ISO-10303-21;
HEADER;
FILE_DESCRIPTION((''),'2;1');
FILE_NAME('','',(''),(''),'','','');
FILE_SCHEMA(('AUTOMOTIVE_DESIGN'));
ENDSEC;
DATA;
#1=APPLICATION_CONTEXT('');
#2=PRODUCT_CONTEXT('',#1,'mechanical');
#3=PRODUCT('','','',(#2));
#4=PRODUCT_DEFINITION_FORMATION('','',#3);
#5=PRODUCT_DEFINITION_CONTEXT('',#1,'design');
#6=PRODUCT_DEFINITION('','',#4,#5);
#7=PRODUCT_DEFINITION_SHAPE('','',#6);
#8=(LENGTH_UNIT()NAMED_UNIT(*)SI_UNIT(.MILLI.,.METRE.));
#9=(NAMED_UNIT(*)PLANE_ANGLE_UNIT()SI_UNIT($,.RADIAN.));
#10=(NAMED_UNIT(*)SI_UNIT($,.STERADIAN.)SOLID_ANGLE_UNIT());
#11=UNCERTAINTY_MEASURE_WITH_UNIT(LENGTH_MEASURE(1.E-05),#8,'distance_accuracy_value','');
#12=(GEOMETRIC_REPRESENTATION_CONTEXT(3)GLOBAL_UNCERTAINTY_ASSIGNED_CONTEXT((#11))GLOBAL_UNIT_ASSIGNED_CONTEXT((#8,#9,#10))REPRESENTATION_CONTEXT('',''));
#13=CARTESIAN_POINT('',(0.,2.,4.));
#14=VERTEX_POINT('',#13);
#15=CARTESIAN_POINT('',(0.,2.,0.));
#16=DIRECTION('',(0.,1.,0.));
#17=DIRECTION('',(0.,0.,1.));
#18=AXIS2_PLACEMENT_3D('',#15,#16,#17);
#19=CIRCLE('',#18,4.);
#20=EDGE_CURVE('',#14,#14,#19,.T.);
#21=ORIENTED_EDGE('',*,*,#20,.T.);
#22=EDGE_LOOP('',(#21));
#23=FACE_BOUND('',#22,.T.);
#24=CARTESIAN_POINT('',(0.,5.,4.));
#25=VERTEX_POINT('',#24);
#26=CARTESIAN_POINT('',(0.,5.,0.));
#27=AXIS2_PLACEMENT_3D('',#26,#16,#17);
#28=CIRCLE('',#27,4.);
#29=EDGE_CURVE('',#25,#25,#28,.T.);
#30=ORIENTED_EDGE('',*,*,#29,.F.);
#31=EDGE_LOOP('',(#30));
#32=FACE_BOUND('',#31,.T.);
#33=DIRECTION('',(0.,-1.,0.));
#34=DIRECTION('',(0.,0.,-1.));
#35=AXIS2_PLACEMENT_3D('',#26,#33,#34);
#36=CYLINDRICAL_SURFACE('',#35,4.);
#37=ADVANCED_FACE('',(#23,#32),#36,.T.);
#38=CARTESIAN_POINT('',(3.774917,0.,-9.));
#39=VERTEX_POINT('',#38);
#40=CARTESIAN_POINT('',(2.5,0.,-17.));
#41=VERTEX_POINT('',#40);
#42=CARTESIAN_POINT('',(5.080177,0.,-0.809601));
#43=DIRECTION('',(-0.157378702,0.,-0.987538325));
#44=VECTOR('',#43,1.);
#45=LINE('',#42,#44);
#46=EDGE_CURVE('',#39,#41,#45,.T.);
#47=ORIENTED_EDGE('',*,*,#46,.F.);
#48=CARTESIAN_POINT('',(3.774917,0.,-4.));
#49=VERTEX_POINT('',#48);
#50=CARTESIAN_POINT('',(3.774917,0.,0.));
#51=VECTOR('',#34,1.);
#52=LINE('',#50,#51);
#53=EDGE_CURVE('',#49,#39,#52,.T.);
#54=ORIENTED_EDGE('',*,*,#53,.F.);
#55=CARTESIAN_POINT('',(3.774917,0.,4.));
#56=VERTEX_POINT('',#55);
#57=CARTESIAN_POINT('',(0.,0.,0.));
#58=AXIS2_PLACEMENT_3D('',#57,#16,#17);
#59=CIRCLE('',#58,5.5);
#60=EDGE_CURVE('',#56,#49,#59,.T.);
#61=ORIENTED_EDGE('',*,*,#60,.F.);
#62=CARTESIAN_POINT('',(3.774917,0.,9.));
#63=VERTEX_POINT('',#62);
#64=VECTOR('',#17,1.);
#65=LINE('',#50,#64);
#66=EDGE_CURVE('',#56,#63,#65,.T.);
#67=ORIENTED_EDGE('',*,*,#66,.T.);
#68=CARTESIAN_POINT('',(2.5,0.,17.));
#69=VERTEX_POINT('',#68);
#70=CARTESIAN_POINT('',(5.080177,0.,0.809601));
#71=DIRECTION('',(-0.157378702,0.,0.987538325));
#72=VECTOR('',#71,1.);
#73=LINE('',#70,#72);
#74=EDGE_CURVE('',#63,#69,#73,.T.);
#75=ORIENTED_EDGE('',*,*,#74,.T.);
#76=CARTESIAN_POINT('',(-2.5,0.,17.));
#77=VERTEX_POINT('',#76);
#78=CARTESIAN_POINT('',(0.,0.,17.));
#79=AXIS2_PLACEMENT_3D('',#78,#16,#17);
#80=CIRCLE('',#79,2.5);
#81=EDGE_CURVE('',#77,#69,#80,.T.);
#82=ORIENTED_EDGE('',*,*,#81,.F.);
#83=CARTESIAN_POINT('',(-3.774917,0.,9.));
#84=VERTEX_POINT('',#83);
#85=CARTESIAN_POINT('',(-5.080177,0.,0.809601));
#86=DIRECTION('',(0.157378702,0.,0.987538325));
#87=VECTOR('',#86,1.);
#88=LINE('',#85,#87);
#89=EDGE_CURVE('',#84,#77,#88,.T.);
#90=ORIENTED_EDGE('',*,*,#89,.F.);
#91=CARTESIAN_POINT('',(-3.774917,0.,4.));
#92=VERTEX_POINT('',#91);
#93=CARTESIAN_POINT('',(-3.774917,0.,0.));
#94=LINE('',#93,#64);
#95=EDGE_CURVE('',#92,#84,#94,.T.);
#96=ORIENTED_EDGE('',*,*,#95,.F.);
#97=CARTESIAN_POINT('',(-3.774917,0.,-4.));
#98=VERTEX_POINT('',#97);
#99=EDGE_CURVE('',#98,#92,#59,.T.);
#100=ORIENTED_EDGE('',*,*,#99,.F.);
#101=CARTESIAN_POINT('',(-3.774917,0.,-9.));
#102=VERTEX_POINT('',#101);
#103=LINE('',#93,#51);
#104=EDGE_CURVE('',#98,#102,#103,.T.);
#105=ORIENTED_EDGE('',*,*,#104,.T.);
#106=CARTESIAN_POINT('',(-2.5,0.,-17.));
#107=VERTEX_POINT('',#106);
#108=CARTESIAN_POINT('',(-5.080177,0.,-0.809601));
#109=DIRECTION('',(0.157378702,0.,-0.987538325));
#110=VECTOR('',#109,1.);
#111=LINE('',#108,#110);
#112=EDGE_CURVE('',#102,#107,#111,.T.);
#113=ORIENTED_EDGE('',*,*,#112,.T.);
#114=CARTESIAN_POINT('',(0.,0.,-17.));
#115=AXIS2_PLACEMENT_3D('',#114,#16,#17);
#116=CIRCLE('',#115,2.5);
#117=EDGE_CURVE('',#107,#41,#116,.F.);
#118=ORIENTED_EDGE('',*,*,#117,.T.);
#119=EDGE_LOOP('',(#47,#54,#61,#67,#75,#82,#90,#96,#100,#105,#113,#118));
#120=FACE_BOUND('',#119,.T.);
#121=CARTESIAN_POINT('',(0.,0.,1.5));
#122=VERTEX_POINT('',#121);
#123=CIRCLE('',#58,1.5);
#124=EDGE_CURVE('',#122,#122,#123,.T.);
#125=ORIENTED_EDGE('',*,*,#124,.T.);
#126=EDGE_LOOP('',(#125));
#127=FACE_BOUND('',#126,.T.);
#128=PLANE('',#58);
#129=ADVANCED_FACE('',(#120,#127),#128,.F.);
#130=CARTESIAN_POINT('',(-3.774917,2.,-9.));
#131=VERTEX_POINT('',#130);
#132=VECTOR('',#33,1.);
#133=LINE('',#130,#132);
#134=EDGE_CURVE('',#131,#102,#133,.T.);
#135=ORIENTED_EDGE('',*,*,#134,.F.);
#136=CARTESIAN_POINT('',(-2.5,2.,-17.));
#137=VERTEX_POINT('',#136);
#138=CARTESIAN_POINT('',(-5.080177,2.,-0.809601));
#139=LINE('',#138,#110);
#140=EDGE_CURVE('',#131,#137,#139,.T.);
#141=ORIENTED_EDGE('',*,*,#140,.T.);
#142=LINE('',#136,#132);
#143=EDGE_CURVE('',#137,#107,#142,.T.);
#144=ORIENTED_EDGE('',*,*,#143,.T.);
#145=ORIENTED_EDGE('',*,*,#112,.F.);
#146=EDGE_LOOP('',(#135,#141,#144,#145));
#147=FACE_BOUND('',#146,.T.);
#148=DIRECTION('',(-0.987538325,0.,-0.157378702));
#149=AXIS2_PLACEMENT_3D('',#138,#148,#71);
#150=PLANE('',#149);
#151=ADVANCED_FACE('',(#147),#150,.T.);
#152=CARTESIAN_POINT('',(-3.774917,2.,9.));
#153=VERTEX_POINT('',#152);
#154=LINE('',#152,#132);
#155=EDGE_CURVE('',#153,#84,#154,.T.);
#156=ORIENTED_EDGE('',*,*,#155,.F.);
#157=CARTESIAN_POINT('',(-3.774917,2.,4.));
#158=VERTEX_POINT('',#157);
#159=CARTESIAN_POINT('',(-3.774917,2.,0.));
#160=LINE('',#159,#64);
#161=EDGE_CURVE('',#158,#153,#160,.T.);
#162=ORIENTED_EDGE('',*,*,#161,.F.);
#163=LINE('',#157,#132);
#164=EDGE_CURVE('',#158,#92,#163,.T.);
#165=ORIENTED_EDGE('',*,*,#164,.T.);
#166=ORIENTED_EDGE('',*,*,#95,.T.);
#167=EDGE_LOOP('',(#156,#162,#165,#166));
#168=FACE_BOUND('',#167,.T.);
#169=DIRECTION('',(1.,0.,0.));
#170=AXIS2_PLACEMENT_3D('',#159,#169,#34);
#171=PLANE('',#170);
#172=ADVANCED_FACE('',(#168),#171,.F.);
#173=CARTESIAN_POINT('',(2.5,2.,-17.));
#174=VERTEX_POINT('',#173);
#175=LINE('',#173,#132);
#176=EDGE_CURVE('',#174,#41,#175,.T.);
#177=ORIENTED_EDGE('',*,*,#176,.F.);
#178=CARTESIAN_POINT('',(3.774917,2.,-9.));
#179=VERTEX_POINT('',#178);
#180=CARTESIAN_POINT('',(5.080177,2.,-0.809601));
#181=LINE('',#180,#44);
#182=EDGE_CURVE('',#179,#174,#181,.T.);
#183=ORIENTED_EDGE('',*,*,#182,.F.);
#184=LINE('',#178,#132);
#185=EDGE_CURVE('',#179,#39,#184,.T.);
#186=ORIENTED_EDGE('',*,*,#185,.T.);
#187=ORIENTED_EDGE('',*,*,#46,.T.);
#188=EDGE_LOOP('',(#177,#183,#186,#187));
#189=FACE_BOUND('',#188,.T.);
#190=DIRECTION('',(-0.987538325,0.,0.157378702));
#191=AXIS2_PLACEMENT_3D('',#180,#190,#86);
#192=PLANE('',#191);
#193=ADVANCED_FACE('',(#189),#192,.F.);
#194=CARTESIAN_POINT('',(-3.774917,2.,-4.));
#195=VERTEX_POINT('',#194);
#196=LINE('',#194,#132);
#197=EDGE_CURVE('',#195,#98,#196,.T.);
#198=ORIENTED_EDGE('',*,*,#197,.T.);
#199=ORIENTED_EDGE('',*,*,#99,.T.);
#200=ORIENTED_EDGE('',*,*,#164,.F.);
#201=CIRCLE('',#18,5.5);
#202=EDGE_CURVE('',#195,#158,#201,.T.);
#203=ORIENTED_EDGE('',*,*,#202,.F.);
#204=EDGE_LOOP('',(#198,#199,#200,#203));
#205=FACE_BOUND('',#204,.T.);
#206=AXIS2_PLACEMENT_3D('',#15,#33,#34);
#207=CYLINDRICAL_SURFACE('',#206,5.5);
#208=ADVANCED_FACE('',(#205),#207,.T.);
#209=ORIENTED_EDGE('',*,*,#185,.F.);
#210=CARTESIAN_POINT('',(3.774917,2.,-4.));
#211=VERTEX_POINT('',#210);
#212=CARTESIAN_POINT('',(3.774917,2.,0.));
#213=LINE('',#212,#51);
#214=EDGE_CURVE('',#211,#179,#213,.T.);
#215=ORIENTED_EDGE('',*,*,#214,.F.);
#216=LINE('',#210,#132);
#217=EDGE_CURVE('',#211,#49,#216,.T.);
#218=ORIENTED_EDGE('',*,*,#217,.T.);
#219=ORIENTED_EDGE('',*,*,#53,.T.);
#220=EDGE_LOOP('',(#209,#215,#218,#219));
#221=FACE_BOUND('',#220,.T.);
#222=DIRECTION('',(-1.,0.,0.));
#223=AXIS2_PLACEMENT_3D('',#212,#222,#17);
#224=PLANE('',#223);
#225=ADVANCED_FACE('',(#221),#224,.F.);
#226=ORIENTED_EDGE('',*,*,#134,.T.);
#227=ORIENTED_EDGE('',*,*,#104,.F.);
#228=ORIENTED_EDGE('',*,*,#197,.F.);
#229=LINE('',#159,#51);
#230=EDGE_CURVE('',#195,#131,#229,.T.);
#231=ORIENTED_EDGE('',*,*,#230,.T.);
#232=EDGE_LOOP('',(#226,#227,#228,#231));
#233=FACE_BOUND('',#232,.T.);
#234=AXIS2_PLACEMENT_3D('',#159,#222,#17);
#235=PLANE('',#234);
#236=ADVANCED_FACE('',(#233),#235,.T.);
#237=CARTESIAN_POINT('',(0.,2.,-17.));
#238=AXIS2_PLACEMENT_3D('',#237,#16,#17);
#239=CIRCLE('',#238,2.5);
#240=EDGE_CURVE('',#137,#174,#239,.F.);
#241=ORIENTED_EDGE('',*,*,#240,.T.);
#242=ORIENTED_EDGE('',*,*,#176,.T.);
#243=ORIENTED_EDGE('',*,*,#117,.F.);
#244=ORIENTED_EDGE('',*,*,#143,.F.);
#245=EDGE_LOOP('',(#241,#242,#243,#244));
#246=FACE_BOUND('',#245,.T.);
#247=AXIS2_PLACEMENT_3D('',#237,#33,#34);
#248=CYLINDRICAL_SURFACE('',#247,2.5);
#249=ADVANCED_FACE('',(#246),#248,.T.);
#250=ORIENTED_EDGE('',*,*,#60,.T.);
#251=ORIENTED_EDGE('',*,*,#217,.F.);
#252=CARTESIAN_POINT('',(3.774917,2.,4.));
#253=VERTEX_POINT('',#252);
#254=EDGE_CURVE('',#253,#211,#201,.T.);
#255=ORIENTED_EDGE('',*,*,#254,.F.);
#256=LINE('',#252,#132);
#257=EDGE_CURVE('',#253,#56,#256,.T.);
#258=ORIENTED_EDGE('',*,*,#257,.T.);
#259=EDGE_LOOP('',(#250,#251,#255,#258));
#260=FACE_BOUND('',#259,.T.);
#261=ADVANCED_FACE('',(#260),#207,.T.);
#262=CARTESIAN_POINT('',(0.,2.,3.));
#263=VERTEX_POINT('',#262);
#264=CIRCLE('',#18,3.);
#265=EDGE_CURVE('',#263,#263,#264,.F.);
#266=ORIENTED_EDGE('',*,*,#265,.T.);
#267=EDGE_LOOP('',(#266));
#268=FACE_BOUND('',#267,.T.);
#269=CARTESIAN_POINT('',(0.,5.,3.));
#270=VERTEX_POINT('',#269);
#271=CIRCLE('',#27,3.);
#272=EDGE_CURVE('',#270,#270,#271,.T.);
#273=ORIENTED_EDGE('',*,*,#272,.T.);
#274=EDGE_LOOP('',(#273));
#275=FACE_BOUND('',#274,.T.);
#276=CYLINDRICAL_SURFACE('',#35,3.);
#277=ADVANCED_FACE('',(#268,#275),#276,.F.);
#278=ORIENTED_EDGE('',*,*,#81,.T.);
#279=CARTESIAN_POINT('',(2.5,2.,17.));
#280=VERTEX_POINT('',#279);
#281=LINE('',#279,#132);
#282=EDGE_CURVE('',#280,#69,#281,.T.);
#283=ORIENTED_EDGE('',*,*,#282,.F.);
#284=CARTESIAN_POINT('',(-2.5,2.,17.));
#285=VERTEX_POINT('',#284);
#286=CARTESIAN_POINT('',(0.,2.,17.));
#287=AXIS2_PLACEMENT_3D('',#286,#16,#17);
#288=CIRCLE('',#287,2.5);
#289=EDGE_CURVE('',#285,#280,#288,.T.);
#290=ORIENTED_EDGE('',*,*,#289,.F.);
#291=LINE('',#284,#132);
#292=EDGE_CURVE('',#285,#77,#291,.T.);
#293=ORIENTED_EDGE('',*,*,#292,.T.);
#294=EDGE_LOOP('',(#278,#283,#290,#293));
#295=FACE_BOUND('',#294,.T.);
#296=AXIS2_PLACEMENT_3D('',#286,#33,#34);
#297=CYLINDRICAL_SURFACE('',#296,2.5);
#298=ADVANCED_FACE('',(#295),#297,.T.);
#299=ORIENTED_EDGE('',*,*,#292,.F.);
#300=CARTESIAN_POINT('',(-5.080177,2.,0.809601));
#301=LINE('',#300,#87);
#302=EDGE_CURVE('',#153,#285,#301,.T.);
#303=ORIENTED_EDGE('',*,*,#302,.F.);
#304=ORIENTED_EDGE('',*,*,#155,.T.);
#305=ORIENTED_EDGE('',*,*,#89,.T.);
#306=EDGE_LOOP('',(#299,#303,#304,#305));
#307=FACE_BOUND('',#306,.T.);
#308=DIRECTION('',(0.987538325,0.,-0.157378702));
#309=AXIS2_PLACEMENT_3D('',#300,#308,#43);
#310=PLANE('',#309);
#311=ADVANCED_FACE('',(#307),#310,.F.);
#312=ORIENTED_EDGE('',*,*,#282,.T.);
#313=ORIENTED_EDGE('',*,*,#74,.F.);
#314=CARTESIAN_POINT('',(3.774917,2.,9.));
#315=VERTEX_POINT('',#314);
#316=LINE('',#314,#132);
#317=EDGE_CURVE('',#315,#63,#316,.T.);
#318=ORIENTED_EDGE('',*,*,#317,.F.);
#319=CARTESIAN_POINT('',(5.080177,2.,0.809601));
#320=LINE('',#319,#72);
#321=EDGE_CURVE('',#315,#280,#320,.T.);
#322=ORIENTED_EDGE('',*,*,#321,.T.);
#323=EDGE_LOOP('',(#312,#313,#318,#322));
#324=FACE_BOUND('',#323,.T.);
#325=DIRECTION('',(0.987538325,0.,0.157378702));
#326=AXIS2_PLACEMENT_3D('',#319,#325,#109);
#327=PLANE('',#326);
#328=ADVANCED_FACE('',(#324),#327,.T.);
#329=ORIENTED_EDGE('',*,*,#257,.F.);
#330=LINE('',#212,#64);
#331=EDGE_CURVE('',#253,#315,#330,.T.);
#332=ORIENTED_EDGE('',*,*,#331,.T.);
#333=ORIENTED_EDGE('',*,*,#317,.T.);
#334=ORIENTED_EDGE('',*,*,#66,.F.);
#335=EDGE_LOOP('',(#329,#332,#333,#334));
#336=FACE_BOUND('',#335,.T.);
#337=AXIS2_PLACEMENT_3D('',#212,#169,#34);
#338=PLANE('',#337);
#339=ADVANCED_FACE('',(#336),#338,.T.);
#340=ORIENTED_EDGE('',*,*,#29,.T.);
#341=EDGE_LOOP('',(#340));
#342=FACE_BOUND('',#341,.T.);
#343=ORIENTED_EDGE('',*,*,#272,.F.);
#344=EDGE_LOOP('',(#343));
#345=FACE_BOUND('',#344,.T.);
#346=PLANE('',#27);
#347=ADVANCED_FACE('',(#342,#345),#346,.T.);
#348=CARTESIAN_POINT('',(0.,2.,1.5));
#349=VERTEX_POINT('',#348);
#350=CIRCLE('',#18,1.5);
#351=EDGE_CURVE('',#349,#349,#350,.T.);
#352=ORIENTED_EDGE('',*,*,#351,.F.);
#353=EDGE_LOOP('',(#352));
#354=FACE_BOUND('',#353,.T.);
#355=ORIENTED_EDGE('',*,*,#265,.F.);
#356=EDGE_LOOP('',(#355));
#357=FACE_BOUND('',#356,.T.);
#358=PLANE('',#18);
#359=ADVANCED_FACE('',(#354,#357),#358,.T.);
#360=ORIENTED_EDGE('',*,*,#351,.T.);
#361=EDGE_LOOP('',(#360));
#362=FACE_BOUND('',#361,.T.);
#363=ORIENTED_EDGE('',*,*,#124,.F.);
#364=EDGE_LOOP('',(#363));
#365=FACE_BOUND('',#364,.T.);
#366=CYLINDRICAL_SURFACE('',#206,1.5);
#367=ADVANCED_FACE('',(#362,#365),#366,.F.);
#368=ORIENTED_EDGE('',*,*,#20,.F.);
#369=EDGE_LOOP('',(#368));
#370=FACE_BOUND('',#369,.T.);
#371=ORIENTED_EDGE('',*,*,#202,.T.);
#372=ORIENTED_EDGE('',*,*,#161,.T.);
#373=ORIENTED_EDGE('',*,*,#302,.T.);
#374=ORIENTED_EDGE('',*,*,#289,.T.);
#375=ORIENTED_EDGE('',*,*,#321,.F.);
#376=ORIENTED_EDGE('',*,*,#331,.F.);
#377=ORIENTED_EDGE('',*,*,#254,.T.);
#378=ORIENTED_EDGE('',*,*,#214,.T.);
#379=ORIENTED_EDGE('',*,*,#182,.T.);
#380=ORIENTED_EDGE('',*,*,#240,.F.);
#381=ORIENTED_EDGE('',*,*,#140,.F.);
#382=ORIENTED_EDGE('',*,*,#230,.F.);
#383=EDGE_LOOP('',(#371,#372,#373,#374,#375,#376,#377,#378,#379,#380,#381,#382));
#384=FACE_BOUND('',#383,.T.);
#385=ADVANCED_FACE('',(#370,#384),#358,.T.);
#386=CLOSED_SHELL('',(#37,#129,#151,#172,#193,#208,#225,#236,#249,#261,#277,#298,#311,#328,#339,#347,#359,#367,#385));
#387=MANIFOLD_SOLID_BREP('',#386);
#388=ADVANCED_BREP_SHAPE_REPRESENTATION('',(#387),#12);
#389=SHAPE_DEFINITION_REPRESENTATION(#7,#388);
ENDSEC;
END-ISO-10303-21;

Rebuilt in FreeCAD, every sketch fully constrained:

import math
import FreeCAD as App
import Part
import Sketcher

V = App.Vector

doc = App.newDocument("Part")
body = doc.addObject("PartDesign::Body", "Body")

# Sketch on XZ plane
sketch1 = doc.addObject("Sketcher::SketchObject", "Sketch")
body.addObject(sketch1)
sketch1.AttachmentSupport = (doc.XZ_Plane, [""])
sketch1.MapMode = "FlatFace"
sketch1.addGeometry(Part.LineSegment(V(-3.8, -9, 0), V(-3.8, -4, 0)), False)
sketch1.addGeometry(Part.ArcOfCircle(Part.Circle(V(0, 0, 0), V(0, 0, 1), 5.5), math.radians(133), math.radians(227)), False)
sketch1.addGeometry(Part.LineSegment(V(-3.8, 4, 0), V(-3.8, 9, 0)), False)
sketch1.addGeometry(Part.LineSegment(V(-3.8, 9, 0), V(-2.5, 17, 0)), False)
sketch1.addGeometry(Part.ArcOfCircle(Part.Circle(V(0, 17, 0), V(0, 0, 1), 2.5), math.radians(0), math.radians(180)), False)
sketch1.addGeometry(Part.LineSegment(V(2.5, 17, 0), V(3.8, 9, 0)), False)
sketch1.addGeometry(Part.LineSegment(V(3.8, 9, 0), V(3.8, 4, 0)), False)
sketch1.addGeometry(Part.ArcOfCircle(Part.Circle(V(0, 0, 0), V(0, 0, 1), 5.5), math.radians(0), math.radians(47)), False)
sketch1.addGeometry(Part.ArcOfCircle(Part.Circle(V(0, 0, 0), V(0, 0, 1), 5.5), math.radians(-47), math.radians(0)), False)
sketch1.addGeometry(Part.LineSegment(V(3.8, -4, 0), V(3.8, -9, 0)), False)
sketch1.addGeometry(Part.LineSegment(V(3.8, -9, 0), V(2.5, -17, 0)), False)
sketch1.addGeometry(Part.ArcOfCircle(Part.Circle(V(0, -17, 0), V(0, 0, 1), 2.5), math.radians(180), math.radians(360)), False)
sketch1.addGeometry(Part.LineSegment(V(-2.5, -17, 0), V(-3.8, -9, 0)), False)
sketch1.addGeometry(Part.Circle(V(0, 0, 0), V(0, 0, 1), 1.5), False)
sketch1.addConstraint(Sketcher.Constraint("Coincident", 0, 2, 1, 2))
sketch1.addConstraint(Sketcher.Constraint("Coincident", 1, 1, 2, 1))
sketch1.addConstraint(Sketcher.Constraint("Coincident", 2, 2, 3, 1))
sketch1.addConstraint(Sketcher.Constraint("Coincident", 3, 2, 4, 2))
sketch1.addConstraint(Sketcher.Constraint("Coincident", 4, 1, 5, 1))
sketch1.addConstraint(Sketcher.Constraint("Coincident", 5, 2, 6, 1))
sketch1.addConstraint(Sketcher.Constraint("Coincident", 6, 2, 7, 2))
sketch1.addConstraint(Sketcher.Constraint("Tangent", 7, 1, 8, 2))
sketch1.addConstraint(Sketcher.Constraint("Coincident", 8, 1, 9, 1))
sketch1.addConstraint(Sketcher.Constraint("Coincident", 9, 2, 10, 1))
sketch1.addConstraint(Sketcher.Constraint("Coincident", 10, 2, 11, 2))
sketch1.addConstraint(Sketcher.Constraint("Coincident", 11, 1, 12, 1))
sketch1.addConstraint(Sketcher.Constraint("Coincident", 12, 2, 0, 1))
sketch1.addConstraint(Sketcher.Constraint("Vertical", 0))
sketch1.addConstraint(Sketcher.Constraint("Vertical", 2))
sketch1.addConstraint(Sketcher.Constraint("Vertical", 6))
sketch1.addConstraint(Sketcher.Constraint("Vertical", 9))
sketch1.addConstraint(Sketcher.Constraint("Coincident", 1, 3, -1, 1))
sketch1.addConstraint(Sketcher.Constraint("Coincident", 7, 3, -1, 1))
sketch1.addConstraint(Sketcher.Constraint("Coincident", 13, 3, -1, 1))
sketch1.addConstraint(Sketcher.Constraint("Equal", 1, 7))
sketch1.addConstraint(Sketcher.Constraint("Equal", 7, 8))
sketch1.addConstraint(Sketcher.Constraint("Equal", 4, 11))
sketch1.addConstraint(Sketcher.Constraint("Symmetric", 4, 3, 11, 3, -1, 1))
sketch1.addConstraint(Sketcher.Constraint("Symmetric", 2, 2, 9, 2, -1, 1))
sketch1.addConstraint(Sketcher.Constraint("Symmetric", 5, 2, 12, 2, -1, 1))
sketch1.addConstraint(Sketcher.Constraint("Symmetric", 3, 2, 4, 1, -2))
sketch1.addConstraint(Sketcher.Constraint("Symmetric", 2, 2, 5, 2, -2))
sketch1.addConstraint(Sketcher.Constraint("PointOnObject", 7, 1, -1))
sketch1.addConstraint(Sketcher.Constraint("Parallel", 3, 10))
sketch1.addConstraint(Sketcher.Constraint("Parallel", 5, 12))
sketch1.addConstraint(Sketcher.Constraint("Horizontal", 4, 3, 3, 2))
sketch1.addConstraint(Sketcher.Constraint("Diameter", 13, 3.0))
sketch1.addConstraint(Sketcher.Constraint("Radius", 1, 5.5))
sketch1.addConstraint(Sketcher.Constraint("Radius", 4, 2.5))
sketch1.addConstraint(Sketcher.Constraint("DistanceY", 0, 1, 0, 2, 5.0))
sketch1.addConstraint(Sketcher.Constraint("DistanceY", -1, 1, 4, 3, 17.0))
sketch1.addConstraint(Sketcher.Constraint("DistanceY", 0, 2, -1, 1, 4.0))
pad1 = doc.addObject("PartDesign::Pad", "Pad")
body.addObject(pad1)
pad1.Profile = sketch1
pad1.Length = 2
pad1.Reversed = True

# Sketch on XZ plane
sketch2 = doc.addObject("Sketcher::SketchObject", "Sketch001")
body.addObject(sketch2)
sketch2.AttachmentSupport = (doc.XZ_Plane, [""])
sketch2.MapMode = "FlatFace"
sketch2.AttachmentOffset = App.Placement(V(0, 0, -2), App.Rotation())
sketch2.addGeometry(Part.Circle(V(0, 0, 0), V(0, 0, 1), 4), False)
sketch2.addGeometry(Part.Circle(V(0, 0, 0), V(0, 0, 1), 3), False)
sketch2.addConstraint(Sketcher.Constraint("Coincident", 0, 3, -1, 1))
sketch2.addConstraint(Sketcher.Constraint("Coincident", 1, 3, -1, 1))
sketch2.addConstraint(Sketcher.Constraint("Diameter", 0, 8.0))
sketch2.addConstraint(Sketcher.Constraint("Diameter", 1, 6.0))
pad2 = doc.addObject("PartDesign::Pad", "Pad001")
body.addObject(pad2)
pad2.Profile = sketch2
pad2.Length = 3
pad2.Reversed = True

doc.recompute()
